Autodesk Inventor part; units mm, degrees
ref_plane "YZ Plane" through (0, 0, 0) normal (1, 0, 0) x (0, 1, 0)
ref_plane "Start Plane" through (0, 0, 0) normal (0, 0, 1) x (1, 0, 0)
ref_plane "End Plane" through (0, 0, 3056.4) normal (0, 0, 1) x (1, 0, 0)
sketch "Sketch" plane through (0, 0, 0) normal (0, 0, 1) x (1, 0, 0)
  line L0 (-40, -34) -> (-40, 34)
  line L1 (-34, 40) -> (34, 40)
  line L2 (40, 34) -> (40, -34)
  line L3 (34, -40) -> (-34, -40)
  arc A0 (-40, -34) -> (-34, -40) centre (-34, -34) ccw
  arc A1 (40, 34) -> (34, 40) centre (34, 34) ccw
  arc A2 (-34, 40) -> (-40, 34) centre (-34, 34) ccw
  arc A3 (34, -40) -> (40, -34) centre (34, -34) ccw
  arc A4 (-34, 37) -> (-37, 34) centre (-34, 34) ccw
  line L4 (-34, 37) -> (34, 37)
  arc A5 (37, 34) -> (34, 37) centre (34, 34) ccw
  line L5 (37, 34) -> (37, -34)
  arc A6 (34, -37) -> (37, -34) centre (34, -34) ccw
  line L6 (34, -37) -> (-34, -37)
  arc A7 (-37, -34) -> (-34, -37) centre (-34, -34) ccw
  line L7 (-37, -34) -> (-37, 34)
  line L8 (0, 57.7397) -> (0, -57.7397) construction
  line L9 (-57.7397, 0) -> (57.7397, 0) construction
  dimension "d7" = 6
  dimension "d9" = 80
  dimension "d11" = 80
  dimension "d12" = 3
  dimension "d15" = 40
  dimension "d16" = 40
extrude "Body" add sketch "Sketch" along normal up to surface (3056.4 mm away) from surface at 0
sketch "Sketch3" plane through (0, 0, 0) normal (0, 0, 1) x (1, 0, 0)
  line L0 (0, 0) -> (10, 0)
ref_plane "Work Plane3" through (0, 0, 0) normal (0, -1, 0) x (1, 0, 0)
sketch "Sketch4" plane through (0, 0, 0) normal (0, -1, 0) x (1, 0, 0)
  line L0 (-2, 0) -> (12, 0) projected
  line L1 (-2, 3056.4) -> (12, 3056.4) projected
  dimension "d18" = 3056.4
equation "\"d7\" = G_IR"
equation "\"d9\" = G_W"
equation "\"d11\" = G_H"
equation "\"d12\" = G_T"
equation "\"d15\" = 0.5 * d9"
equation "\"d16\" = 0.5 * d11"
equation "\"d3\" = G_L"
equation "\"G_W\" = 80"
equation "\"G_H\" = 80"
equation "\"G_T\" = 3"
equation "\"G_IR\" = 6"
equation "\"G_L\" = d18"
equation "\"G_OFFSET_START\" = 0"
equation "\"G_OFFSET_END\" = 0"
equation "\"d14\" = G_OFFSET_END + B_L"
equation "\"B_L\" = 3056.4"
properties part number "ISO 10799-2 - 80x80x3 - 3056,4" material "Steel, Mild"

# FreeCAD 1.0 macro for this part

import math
import FreeCAD as App
import Part
import Sketcher

V = App.Vector
Q = App.Units.Quantity

doc = App.newDocument("Part")
body = doc.addObject("PartDesign::Body", "Body")

# Sketch on XY plane
sketch1 = body.newObject("Sketcher::SketchObject", "Sketch")
sketch1.AttachmentSupport = (doc.getObject("XY_Plane"), [""])
sketch1.MapMode = "FlatFace"
sketch1.addGeometry([
    Part.LineSegment(V(-40, 34, 0), V(-40, -34, 0)),  # 0
    Part.ArcOfCircle(Part.Circle(V(-34, -34, 0), V(0, 0, 1), 6), math.radians(180), math.radians(270)),  # 1
    Part.LineSegment(V(-34, -40, 0), V(34, -40, 0)),  # 2
    Part.ArcOfCircle(Part.Circle(V(34, -34, 0), V(0, 0, 1), 6), math.radians(-90), math.radians(0)),  # 3
    Part.LineSegment(V(40, -34, 0), V(40, 34, 0)),  # 4
    Part.ArcOfCircle(Part.Circle(V(34, 34, 0), V(0, 0, 1), 6), math.radians(0), math.radians(90)),  # 5
    Part.LineSegment(V(34, 40, 0), V(-34, 40, 0)),  # 6
    Part.ArcOfCircle(Part.Circle(V(-34, 34, 0), V(0, 0, 1), 6), math.radians(90), math.radians(180)),  # 7
    Part.ArcOfCircle(Part.Circle(V(-34, 34, 0), V(0, 0, 1), 3), math.radians(90), math.radians(180)),  # 8
    Part.LineSegment(V(-34, 37, 0), V(34, 37, 0)),  # 9
    Part.ArcOfCircle(Part.Circle(V(34, 34, 0), V(0, 0, 1), 3), math.radians(0), math.radians(90)),  # 10
    Part.LineSegment(V(37, 34, 0), V(37, -34, 0)),  # 11
    Part.ArcOfCircle(Part.Circle(V(34, -34, 0), V(0, 0, 1), 3), math.radians(-90), math.radians(0)),  # 12
    Part.LineSegment(V(34, -37, 0), V(-34, -37, 0)),  # 13
    Part.ArcOfCircle(Part.Circle(V(-34, -34, 0), V(0, 0, 1), 3), math.radians(180), math.radians(270)),  # 14
    Part.LineSegment(V(-37, -34, 0), V(-37, 34, 0)),  # 15
], False)
sketch1.addConstraint([
    Sketcher.Constraint("Tangent", 0, 2, 1, 1),
    Sketcher.Constraint("Tangent", 1, 2, 2, 1),
    Sketcher.Constraint("Tangent", 2, 2, 3, 1),
    Sketcher.Constraint("Tangent", 3, 2, 4, 1),
    Sketcher.Constraint("Tangent", 4, 2, 5, 1),
    Sketcher.Constraint("Tangent", 5, 2, 6, 1),
    Sketcher.Constraint("Tangent", 6, 2, 7, 1),
    Sketcher.Constraint("Tangent", 7, 2, 0, 1),
    Sketcher.Constraint("Tangent", 8, 1, 9, 1),
    Sketcher.Constraint("Tangent", 9, 2, 10, 2),
    Sketcher.Constraint("Tangent", 10, 1, 11, 1),
    Sketcher.Constraint("Tangent", 11, 2, 12, 2),
    Sketcher.Constraint("Tangent", 12, 1, 13, 1),
    Sketcher.Constraint("Tangent", 13, 2, 14, 2),
    Sketcher.Constraint("Tangent", 14, 1, 15, 1),
    Sketcher.Constraint("Tangent", 15, 2, 8, 2),
    Sketcher.Constraint("Vertical", 0),
    Sketcher.Constraint("Horizontal", 2),
    Sketcher.Constraint("Vertical", 4),
    Sketcher.Constraint("Horizontal", 6),
    Sketcher.Constraint("Horizontal", 9),
    Sketcher.Constraint("Vertical", 11),
    Sketcher.Constraint("Horizontal", 13),
    Sketcher.Constraint("Vertical", 15),
    Sketcher.Constraint("Coincident", 8, 3, 7, 3),
    Sketcher.Constraint("Coincident", 10, 3, 5, 3),
    Sketcher.Constraint("Coincident", 12, 3, 3, 3),
    Sketcher.Constraint("Equal", 1, 3),
    Sketcher.Constraint("Equal", 3, 5),
    Sketcher.Constraint("Equal", 5, 7),
    Sketcher.Constraint("Equal", 12, 14),
    Sketcher.Constraint("Symmetric", 1, 3, 5, 3, -1, 1),
    Sketcher.Constraint("Equal", 13, 0),
    Sketcher.Constraint("Radius", 1, Q("6 mm")),
    Sketcher.Constraint("Radius", 8, Q("3 mm")),
    Sketcher.Constraint("DistanceX", 0, 2, -1, 1, Q("40 mm")),
])
pad1 = body.newObject("PartDesign::Pad", "Pad")
pad1.Profile = sketch1
pad1.Length = 3056.4

doc.recompute()
